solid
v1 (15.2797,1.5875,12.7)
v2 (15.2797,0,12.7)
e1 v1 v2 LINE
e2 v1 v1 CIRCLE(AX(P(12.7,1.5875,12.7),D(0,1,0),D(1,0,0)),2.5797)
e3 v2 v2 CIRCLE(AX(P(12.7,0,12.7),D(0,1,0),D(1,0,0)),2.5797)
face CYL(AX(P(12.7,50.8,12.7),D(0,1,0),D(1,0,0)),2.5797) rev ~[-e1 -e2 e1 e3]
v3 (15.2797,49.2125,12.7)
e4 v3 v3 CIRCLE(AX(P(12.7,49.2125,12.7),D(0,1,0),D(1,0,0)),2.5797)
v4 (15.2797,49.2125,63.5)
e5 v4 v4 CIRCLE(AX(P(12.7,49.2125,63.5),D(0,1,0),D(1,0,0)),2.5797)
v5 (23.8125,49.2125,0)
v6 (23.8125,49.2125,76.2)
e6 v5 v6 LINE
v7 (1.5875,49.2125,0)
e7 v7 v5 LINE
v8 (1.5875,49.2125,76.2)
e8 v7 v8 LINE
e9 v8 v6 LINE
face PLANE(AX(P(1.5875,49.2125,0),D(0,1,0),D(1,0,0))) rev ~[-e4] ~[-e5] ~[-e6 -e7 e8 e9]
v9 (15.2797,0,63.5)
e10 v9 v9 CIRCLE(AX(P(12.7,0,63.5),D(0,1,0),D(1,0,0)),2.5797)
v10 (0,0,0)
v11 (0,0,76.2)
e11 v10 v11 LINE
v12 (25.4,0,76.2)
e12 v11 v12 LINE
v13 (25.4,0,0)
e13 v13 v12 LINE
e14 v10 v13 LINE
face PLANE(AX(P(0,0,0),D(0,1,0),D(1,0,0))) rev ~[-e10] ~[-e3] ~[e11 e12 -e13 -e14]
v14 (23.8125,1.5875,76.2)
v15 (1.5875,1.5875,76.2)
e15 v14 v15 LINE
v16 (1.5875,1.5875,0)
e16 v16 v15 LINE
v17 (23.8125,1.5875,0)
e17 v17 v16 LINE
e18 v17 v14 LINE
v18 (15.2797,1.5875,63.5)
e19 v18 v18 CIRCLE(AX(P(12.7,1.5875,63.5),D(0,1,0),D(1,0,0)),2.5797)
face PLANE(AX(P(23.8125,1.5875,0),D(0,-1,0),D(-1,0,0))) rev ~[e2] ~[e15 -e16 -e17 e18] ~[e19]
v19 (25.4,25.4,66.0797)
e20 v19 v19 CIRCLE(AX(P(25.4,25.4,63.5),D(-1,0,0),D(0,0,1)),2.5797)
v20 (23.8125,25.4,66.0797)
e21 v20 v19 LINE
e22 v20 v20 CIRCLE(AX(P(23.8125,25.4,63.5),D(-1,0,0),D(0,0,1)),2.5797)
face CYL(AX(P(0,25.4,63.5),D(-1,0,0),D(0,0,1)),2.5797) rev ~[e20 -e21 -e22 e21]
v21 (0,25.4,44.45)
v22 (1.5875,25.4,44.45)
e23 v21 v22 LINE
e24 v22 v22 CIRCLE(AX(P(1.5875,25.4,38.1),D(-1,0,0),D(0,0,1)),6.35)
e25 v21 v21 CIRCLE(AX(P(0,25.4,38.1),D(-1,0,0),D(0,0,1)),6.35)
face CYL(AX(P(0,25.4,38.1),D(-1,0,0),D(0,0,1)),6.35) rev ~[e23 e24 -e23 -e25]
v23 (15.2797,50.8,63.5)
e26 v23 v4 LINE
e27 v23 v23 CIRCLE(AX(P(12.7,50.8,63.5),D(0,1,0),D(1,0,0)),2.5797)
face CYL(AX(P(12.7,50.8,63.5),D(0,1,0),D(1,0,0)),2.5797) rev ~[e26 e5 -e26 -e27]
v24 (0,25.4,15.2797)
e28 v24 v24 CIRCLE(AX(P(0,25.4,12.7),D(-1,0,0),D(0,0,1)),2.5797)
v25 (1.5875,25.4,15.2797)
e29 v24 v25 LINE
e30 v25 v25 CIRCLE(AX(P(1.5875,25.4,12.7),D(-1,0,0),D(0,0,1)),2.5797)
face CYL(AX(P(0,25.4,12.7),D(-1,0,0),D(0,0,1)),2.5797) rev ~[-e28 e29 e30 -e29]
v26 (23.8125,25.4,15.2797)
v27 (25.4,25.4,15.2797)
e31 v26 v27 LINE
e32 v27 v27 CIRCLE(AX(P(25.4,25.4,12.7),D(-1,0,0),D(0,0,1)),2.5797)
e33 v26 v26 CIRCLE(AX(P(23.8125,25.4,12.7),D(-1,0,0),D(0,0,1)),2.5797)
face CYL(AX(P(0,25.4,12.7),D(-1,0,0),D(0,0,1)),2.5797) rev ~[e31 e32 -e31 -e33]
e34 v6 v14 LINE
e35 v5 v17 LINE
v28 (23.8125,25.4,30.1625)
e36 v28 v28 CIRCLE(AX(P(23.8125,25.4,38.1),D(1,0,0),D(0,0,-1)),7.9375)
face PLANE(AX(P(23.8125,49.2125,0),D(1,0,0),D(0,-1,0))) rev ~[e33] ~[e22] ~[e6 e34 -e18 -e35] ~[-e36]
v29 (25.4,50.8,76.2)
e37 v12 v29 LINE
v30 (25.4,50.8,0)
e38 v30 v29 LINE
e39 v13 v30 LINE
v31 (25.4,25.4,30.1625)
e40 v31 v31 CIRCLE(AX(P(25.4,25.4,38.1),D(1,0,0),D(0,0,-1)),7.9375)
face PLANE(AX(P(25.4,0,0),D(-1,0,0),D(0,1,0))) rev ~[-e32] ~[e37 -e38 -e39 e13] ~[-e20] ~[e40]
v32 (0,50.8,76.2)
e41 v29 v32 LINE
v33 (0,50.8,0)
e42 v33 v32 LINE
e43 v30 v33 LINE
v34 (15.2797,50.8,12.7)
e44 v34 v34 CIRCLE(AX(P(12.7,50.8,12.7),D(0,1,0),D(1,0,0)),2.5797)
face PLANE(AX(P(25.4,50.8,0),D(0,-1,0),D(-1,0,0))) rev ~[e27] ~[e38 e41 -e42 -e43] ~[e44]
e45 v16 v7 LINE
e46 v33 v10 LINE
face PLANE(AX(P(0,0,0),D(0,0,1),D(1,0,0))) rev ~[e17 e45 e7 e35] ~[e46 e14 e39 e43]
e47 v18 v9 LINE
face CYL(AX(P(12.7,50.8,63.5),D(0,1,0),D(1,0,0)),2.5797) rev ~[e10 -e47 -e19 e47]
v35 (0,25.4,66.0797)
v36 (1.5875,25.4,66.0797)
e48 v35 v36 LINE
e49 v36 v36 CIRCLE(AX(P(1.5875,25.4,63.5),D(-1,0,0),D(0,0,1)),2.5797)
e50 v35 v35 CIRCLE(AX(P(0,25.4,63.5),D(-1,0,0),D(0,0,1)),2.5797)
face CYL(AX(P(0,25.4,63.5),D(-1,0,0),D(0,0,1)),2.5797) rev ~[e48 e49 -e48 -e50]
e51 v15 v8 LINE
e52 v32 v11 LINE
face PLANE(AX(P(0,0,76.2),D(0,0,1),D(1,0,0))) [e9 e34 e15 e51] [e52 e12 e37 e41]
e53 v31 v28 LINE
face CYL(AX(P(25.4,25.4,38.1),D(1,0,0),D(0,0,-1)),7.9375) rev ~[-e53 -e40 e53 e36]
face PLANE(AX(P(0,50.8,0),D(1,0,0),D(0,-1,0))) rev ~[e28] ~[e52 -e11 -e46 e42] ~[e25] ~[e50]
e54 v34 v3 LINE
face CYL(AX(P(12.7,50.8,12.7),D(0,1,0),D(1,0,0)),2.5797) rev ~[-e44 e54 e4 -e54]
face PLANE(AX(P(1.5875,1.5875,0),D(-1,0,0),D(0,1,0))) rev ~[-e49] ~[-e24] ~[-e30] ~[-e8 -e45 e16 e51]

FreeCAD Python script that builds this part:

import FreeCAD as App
import Part
import Sketcher

V = App.Vector
Q = App.Units.Quantity

doc = App.newDocument("Part")
params = doc.addObject("Spreadsheet::Sheet", "Params")
for row, (alias, value) in enumerate([
    ("sketch1_width", "1 in"),
    ("sketch1_height", "2 in"),
    ("pad1_length", "3 in"),
    ("sketch2_diameter", "0.625 in"),
    ("pocket1_length", "0.1875 in"),
    ("sketch3_diameter", "0.5 in"),
    ("pocket2_length", "0.1875 in"),
    ("sketch4_diameter", "0.203126 in"),
    ("pocket3_length", "2.1875 in"),
    ("sketch5_diameter", "0.203126 in"),
    ("pocket4_length", "2.625 in"),
], start=1):
    params.set(f"A{row}", alias)
    params.set(f"B{row}", "=" + value)
    params.setAlias(f"B{row}", alias)

body = doc.addObject("PartDesign::Body", "Body")

sketch1 = body.newObject("Sketcher::SketchObject", "Sketch")
sketch1.AttachmentSupport = (doc.getObject("XY_Plane"), [""])
sketch1.MapMode = "FlatFace"
sketch1.addGeometry(Part.LineSegment(V(0, 51, 0), V(0, 0, 0)), False)
sketch1.addGeometry(Part.LineSegment(V(0, 0, 0), V(25, 0, 0)), False)
sketch1.addGeometry(Part.LineSegment(V(25, 0, 0), V(25, 51, 0)), False)
sketch1.addGeometry(Part.LineSegment(V(25, 51, 0), V(0, 51, 0)), False)
sketch1.addGeometry(Part.LineSegment(V(2, 2, 0), V(2, 49, 0)), False)
sketch1.addGeometry(Part.LineSegment(V(2, 49, 0), V(24, 49, 0)), False)
sketch1.addGeometry(Part.LineSegment(V(24, 49, 0), V(24, 2, 0)), False)
sketch1.addGeometry(Part.LineSegment(V(24, 2, 0), V(2, 2, 0)), False)
sketch1.addConstraint(Sketcher.Constraint("Coincident", 0, 2, 1, 1))
sketch1.addConstraint(Sketcher.Constraint("Coincident", 1, 2, 2, 1))
sketch1.addConstraint(Sketcher.Constraint("Coincident", 2, 2, 3, 1))
sketch1.addConstraint(Sketcher.Constraint("Coincident", 3, 2, 0, 1))
sketch1.addConstraint(Sketcher.Constraint("Coincident", 4, 2, 5, 1))
sketch1.addConstraint(Sketcher.Constraint("Coincident", 5, 2, 6, 1))
sketch1.addConstraint(Sketcher.Constraint("Coincident", 6, 2, 7, 1))
sketch1.addConstraint(Sketcher.Constraint("Coincident", 7, 2, 4, 1))
sketch1.addConstraint(Sketcher.Constraint("Vertical", 0))
sketch1.addConstraint(Sketcher.Constraint("Horizontal", 1))
sketch1.addConstraint(Sketcher.Constraint("Vertical", 2))
sketch1.addConstraint(Sketcher.Constraint("Horizontal", 3))
sketch1.addConstraint(Sketcher.Constraint("Vertical", 4))
sketch1.addConstraint(Sketcher.Constraint("Horizontal", 5))
sketch1.addConstraint(Sketcher.Constraint("Vertical", 6))
sketch1.addConstraint(Sketcher.Constraint("Horizontal", 7))
sketch1.addConstraint(Sketcher.Constraint("Coincident", 0, 2, -1, 1))
sketch1.addConstraint(Sketcher.Constraint("DistanceX", 1, 1, 1, 2, Q("1 in")))
sketch1.addConstraint(Sketcher.Constraint("DistanceY", 0, 2, 0, 1, Q("2 in")))
sketch1.addConstraint(Sketcher.Constraint("DistanceX", -1, 1, 4, 2, Q("0.0625 in")))
sketch1.addConstraint(Sketcher.Constraint("DistanceY", -1, 1, 6, 2, Q("0.0625 in")))
sketch1.addConstraint(Sketcher.Constraint("DistanceY", 4, 2, 3, 2, Q("0.0625 in")))
sketch1.addConstraint(Sketcher.Constraint("DistanceX", 5, 2, 2, 2, Q("0.0625 in")))
sketch1.setExpression("Constraints[17]", "Params.sketch1_width")
sketch1.setExpression("Constraints[18]", "Params.sketch1_height")
pad1 = body.newObject("PartDesign::Pad", "Pad")
pad1.Profile = sketch1
pad1.setExpression("Length", "Params.pad1_length")

sketch2 = body.newObject("Sketcher::SketchObject", "Sketch001")
sketch2.AttachmentSupport = (doc.getObject("YZ_Plane"), [""])
sketch2.MapMode = "FlatFace"
sketch2.AttachmentOffset = App.Placement(V(0, 0, 1 * 25.4), App.Rotation())
sketch2.addGeometry(Part.Circle(V(25, 38, 0), V(0, 0, 1), 8), False)
sketch2.addConstraint(Sketcher.Constraint("Diameter", 0, Q("0.625 in")))
sketch2.addConstraint(Sketcher.Constraint("DistanceX", -1, 1, 0, 3, Q("1 in")))
sketch2.addConstraint(Sketcher.Constraint("DistanceY", -1, 1, 0, 3, Q("1.5 in")))
sketch2.setExpression("Constraints[0]", "Params.sketch2_diameter")
pocket1 = body.newObject("PartDesign::Pocket", "Pocket")
pocket1.Profile = sketch2
pocket1.setExpression("Length", "Params.pocket1_length")

sketch3 = body.newObject("Sketcher::SketchObject", "Sketch002")
sketch3.AttachmentSupport = (doc.getObject("YZ_Plane"), [""])
sketch3.MapMode = "FlatFace"
sketch3.addGeometry(Part.Circle(V(25, 38, 0), V(0, 0, 1), 6), False)
sketch3.addConstraint(Sketcher.Constraint("Diameter", 0, Q("0.5 in")))
sketch3.addConstraint(Sketcher.Constraint("DistanceX", -1, 1, 0, 3, Q("1 in")))
sketch3.addConstraint(Sketcher.Constraint("DistanceY", -1, 1, 0, 3, Q("1.5 in")))
sketch3.setExpression("Constraints[0]", "Params.sketch3_diameter")
pocket2 = body.newObject("PartDesign::Pocket", "Pocket001")
pocket2.Profile = sketch3
pocket2.setExpression("Length", "Params.pocket2_length")
pocket2.Reversed = True

sketch4 = body.newObject("Sketcher::SketchObject", "Sketch003")
sketch4.AttachmentSupport = (doc.getObject("YZ_Plane"), [""])
sketch4.MapMode = "FlatFace"
sketch4.addGeometry(Part.Circle(V(25.4, 12.7, 0), V(0, 0, 1), 2.6), False)
sketch4.addGeometry(Part.Circle(V(25.4, 63.5, 0), V(0, 0, 1), 2.6), False)
sketch4.addConstraint(Sketcher.Constraint("Equal", 0, 1))
sketch4.addConstraint(Sketcher.Constraint("Vertical", 0, 3, 1, 3))
sketch4.addConstraint(Sketcher.Constraint("Diameter", 0, Q("0.203126 in")))
sketch4.addConstraint(Sketcher.Constraint("DistanceY", 0, 3, 1, 3, Q("2 in")))
sketch4.addConstraint(Sketcher.Constraint("DistanceY", -1, 1, 0, 3, Q("0.5 in")))
sketch4.addConstraint(Sketcher.Constraint("DistanceX", -1, 1, 0, 3, Q("1 in")))
sketch4.setExpression("Constraints[2]", "Params.sketch4_diameter")
pocket3 = body.newObject("PartDesign::Pocket", "Pocket002")
pocket3.Profile = sketch4
pocket3.setExpression("Length", "Params.pocket3_length")
pocket3.Reversed = True

sketch5 = body.newObject("Sketcher::SketchObject", "Sketch004")
sketch5.AttachmentSupport = (doc.getObject("XZ_Plane"), [""])
sketch5.MapMode = "FlatFace"
sketch5.AttachmentOffset = App.Placement(V(0, 0, -2 * 25.4), App.Rotation())
sketch5.addGeometry(Part.Circle(V(12.7, 12.7, 0), V(0, 0, 1), 2.6), False)
sketch5.addGeometry(Part.Circle(V(12.7, 63.5, 0), V(0, 0, 1), 2.6), False)
sketch5.addConstraint(Sketcher.Constraint("Equal", 0, 1))
sketch5.addConstraint(Sketcher.Constraint("Vertical", 0, 3, 1, 3))
sketch5.addConstraint(Sketcher.Constraint("Diameter", 0, Q("0.203126 in")))
sketch5.addConstraint(Sketcher.Constraint("DistanceY", 0, 3, 1, 3, Q("2 in")))
sketch5.addConstraint(Sketcher.Constraint("DistanceX", -1, 1, 0, 3, Q("0.5 in")))
sketch5.addConstraint(Sketcher.Constraint("DistanceY", -1, 1, 0, 3, Q("0.5 in")))
sketch5.setExpression("Constraints[2]", "Params.sketch5_diameter")
pocket4 = body.newObject("PartDesign::Pocket", "Pocket003")
pocket4.Profile = sketch5
pocket4.setExpression("Length", "Params.pocket4_length")
pocket4.Reversed = True

doc.recompute()
